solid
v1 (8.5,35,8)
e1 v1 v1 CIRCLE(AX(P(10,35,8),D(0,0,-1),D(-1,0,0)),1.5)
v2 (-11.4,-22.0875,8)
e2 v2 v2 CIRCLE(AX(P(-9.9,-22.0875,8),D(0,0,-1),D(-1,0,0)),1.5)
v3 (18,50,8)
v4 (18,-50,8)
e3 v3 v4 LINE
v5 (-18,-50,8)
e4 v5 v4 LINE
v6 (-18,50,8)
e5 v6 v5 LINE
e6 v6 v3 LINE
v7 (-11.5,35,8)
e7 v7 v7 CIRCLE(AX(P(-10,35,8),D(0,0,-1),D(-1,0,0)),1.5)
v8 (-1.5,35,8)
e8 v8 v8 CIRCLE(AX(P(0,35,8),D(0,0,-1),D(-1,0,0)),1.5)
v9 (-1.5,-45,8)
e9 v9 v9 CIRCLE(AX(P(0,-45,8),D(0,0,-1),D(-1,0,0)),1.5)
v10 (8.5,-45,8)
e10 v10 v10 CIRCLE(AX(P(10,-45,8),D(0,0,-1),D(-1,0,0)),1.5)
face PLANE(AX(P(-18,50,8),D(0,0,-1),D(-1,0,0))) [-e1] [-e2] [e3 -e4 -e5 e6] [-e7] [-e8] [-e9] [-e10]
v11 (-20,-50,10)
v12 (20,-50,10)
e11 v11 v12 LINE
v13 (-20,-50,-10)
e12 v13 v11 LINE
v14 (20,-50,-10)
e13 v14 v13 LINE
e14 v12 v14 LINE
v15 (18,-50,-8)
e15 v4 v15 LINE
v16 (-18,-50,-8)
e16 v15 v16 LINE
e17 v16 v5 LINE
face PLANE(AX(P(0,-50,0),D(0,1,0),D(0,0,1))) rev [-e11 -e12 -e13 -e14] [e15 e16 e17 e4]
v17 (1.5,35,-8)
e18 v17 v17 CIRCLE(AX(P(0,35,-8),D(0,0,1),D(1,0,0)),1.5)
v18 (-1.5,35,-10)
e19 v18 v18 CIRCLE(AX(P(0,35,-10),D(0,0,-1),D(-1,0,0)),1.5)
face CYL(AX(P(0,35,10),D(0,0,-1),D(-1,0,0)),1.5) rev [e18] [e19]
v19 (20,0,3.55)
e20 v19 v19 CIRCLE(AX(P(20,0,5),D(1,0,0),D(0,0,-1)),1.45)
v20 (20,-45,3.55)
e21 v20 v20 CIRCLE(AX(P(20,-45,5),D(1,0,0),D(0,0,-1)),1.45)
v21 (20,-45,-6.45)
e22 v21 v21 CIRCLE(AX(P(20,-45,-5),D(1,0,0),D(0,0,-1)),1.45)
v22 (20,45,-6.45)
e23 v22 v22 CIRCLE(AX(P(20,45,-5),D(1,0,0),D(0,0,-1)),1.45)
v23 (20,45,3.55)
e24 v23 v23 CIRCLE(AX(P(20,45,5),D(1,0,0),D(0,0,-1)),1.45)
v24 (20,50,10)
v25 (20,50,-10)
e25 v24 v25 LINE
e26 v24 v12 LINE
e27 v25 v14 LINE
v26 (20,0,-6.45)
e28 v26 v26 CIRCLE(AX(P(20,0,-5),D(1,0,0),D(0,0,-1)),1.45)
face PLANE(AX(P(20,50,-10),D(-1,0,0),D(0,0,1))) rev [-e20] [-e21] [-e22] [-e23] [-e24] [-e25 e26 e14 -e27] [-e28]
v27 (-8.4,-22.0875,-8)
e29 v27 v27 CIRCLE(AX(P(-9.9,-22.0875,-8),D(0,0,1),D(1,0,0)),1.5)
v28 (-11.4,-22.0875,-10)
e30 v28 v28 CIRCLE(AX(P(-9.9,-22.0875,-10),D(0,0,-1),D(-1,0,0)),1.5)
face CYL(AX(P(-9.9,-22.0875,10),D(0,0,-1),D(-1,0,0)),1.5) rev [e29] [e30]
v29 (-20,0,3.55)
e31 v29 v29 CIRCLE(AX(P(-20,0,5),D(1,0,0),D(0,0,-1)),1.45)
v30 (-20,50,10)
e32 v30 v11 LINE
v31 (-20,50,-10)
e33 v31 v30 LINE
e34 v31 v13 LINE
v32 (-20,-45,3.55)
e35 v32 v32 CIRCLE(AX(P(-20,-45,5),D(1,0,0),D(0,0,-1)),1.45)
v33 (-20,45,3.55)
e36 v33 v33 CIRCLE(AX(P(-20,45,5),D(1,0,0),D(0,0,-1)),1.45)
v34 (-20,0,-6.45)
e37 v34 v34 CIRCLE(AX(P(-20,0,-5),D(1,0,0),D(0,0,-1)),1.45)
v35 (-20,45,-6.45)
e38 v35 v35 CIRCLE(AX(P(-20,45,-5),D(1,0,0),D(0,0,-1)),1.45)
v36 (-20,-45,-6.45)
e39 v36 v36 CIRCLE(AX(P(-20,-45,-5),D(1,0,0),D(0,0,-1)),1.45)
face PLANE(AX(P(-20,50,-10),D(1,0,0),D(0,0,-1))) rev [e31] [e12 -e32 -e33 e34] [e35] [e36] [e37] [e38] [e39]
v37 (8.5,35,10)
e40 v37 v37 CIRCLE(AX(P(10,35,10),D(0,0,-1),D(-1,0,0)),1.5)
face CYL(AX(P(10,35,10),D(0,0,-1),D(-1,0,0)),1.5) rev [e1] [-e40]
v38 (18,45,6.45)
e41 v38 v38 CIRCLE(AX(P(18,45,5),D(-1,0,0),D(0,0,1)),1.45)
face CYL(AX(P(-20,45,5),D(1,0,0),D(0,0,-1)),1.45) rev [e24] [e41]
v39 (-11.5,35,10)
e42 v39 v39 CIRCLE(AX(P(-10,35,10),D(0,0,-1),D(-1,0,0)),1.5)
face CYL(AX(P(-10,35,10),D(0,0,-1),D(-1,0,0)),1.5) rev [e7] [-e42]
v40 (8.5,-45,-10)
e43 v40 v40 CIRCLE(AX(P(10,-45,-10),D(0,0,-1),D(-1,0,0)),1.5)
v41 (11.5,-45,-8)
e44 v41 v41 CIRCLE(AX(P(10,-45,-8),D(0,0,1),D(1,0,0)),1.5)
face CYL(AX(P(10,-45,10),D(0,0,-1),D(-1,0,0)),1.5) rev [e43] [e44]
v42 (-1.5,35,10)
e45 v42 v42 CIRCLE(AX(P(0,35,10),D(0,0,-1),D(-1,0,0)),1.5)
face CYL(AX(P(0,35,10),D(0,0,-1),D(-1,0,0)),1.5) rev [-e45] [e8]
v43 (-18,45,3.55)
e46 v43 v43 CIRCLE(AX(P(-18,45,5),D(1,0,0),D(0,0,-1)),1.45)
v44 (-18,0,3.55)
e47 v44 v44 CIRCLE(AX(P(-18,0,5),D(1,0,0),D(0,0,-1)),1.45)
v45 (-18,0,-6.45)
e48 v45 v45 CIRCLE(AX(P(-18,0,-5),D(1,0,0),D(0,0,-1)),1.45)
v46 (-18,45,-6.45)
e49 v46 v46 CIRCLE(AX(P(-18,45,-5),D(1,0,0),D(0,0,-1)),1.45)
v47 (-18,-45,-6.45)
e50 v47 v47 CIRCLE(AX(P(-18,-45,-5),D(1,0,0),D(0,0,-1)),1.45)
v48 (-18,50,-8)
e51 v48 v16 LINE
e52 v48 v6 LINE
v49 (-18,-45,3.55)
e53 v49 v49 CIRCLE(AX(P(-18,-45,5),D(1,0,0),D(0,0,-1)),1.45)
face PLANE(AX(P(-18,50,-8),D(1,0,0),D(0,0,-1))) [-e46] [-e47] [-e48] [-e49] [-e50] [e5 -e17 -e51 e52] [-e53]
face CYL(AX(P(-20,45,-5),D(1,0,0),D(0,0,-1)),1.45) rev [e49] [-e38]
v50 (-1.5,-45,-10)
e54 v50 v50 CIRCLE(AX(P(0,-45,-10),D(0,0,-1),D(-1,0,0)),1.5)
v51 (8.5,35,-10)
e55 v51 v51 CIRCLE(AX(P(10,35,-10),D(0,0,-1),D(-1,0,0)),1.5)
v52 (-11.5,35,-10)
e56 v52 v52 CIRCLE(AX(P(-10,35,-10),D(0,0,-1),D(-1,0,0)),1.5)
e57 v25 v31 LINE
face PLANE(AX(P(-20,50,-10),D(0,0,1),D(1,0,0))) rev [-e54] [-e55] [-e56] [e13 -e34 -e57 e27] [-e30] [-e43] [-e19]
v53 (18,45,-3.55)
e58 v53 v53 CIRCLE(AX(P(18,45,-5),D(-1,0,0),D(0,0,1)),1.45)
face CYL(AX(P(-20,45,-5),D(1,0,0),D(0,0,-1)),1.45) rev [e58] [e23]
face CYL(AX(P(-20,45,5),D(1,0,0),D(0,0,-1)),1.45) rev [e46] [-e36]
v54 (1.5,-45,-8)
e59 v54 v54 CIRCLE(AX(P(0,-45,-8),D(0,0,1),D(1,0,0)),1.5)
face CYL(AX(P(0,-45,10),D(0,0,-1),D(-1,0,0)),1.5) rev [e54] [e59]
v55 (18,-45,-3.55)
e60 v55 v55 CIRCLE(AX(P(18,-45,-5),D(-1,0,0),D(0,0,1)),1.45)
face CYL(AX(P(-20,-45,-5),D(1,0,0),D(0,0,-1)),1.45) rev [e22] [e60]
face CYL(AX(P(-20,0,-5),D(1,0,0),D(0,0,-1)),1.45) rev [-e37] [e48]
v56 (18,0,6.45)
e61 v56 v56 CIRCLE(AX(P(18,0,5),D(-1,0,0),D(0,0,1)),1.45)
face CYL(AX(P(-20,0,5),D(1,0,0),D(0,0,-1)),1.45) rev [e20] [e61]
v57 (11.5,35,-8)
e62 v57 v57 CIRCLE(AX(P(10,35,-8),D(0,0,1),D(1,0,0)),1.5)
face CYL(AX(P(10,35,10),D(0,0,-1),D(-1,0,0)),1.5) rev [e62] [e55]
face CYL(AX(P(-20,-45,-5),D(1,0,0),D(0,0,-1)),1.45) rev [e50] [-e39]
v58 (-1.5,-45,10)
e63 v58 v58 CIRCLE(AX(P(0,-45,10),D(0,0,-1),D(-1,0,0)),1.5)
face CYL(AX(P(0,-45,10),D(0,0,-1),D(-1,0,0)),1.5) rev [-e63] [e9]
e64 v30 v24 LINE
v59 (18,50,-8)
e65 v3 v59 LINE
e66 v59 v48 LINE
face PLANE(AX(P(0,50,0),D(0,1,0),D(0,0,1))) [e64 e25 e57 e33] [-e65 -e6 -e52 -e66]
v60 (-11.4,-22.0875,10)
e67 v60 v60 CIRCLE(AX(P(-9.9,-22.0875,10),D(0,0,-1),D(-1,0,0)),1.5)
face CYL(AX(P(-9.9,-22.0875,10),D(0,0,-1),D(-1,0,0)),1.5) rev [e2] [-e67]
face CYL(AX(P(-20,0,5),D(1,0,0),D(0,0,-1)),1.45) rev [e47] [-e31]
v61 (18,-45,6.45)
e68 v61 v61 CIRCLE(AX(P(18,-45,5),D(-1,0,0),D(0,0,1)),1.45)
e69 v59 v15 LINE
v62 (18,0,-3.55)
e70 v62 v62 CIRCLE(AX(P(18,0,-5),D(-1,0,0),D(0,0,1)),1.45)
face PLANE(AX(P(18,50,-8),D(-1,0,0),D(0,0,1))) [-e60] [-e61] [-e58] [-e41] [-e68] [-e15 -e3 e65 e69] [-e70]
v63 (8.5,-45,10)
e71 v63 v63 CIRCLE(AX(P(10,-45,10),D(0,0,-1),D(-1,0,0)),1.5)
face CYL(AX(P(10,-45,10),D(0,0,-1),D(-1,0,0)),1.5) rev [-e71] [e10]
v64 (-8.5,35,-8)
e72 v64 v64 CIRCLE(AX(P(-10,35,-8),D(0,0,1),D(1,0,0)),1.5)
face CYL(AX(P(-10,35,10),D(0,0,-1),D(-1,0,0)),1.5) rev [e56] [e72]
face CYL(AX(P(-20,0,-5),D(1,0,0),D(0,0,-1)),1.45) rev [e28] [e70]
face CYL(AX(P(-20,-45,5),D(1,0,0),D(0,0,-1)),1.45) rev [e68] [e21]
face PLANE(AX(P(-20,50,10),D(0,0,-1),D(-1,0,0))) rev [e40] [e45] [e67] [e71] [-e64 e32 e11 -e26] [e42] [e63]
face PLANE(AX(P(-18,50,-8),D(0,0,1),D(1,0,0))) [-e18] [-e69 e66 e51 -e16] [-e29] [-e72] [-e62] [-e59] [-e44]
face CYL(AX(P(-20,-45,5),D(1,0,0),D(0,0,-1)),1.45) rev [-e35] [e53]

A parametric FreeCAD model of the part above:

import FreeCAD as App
import Part
import Sketcher
Q = App.Units.Quantity


def add_polygon(sketch, points):
    """Adds a closed chain of lines whose ends are joined by coincident constraints."""
    first, n = sketch.GeometryCount, len(points)
    for a, b in zip(points, points[1:] + points[:1]):
        sketch.addGeometry(Part.LineSegment(App.Vector(*a, 0), App.Vector(*b, 0)), False)
    for i in range(n):
        sketch.addConstraint(Sketcher.Constraint("Coincident", first + i, 2, first + (i + 1) % n, 1))

doc = App.newDocument("Part")
params = doc.addObject("Spreadsheet::Sheet", "Params")
for row, (alias, value) in enumerate([
    ("sketch1_width", "40 mm"),
    ("sketch1_width2", "36 mm"),
    ("sketch1_height", "20 mm"),
    ("sketch1_height2", "16 mm"),
    ("pad1_length", "100 mm"),
    ("sketch2_diameter", "2.9 mm"),
    ("sketch3_diameter", "3 mm"),
    ("sketch4_diameter", "3 mm"),
], start=1):
    params.set(f"A{row}", alias)
    params.set(f"B{row}", "=" + value)
    params.setAlias(f"B{row}", alias)

body = doc.addObject("PartDesign::Body", "Body")

# Sketch on XZ plane
sketch1 = body.newObject("Sketcher::SketchObject", "Sketch")
sketch1.AttachmentSupport = (doc.getObject("XZ_Plane"), [""])
sketch1.MapMode = "FlatFace"
add_polygon(sketch1, [(-20, -10), (-20, 10), (20, 10), (20, -10)])  # lines 0-3
add_polygon(sketch1, [(18, 8), (-18, 8), (-18, -8), (18, -8)])  # lines 4-7
sketch1.addConstraint(Sketcher.Constraint("Vertical", 0))
sketch1.addConstraint(Sketcher.Constraint("Horizontal", 1))
sketch1.addConstraint(Sketcher.Constraint("Vertical", 2))
sketch1.addConstraint(Sketcher.Constraint("Horizontal", 3))
sketch1.addConstraint(Sketcher.Constraint("Horizontal", 4))
sketch1.addConstraint(Sketcher.Constraint("Vertical", 5))
sketch1.addConstraint(Sketcher.Constraint("Horizontal", 6))
sketch1.addConstraint(Sketcher.Constraint("Vertical", 7))
sketch1.addConstraint(Sketcher.Constraint("Symmetric", 0, 2, 2, 2, -1, 1))
sketch1.addConstraint(Sketcher.Constraint("Symmetric", 4, 2, 6, 2, -1, 1))
sketch1.addConstraint(Sketcher.Constraint("DistanceX", 1, 1, 1, 2, Q("40 mm")))
sketch1.addConstraint(Sketcher.Constraint("DistanceX", 4, 2, 4, 1, Q("36 mm")))
sketch1.addConstraint(Sketcher.Constraint("DistanceY", 0, 1, 0, 2, Q("20 mm")))
sketch1.addConstraint(Sketcher.Constraint("DistanceY", 5, 2, 5, 1, Q("16 mm")))
sketch1.setExpression("Constraints[18]", "Params.sketch1_width")
sketch1.setExpression("Constraints[19]", "Params.sketch1_width2")
sketch1.setExpression("Constraints[20]", "Params.sketch1_height")
sketch1.setExpression("Constraints[21]", "Params.sketch1_height2")
pad1 = body.newObject("PartDesign::Pad", "Pad")
pad1.Profile = sketch1
pad1.setExpression("Length", "Params.pad1_length")
pad1.Midplane = True

# Sketch on YZ plane
sketch2 = body.newObject("Sketcher::SketchObject", "Sketch001")
sketch2.AttachmentSupport = (doc.getObject("YZ_Plane"), [""])
sketch2.MapMode = "FlatFace"
sketch2.AttachmentOffset = App.Placement(App.Vector(0, 0, 20), App.Rotation())
sketch2.addGeometry(Part.Circle(App.Vector(45, -5, 0), App.Vector(0, 0, 1), 1.45), False)
sketch2.addGeometry(Part.Circle(App.Vector(45, 5, 0), App.Vector(0, 0, 1), 1.45), False)
sketch2.addGeometry(Part.Circle(App.Vector(0, -5, 0), App.Vector(0, 0, 1), 1.45), False)
sketch2.addGeometry(Part.Circle(App.Vector(0, 5, 0), App.Vector(0, 0, 1), 1.45), False)
sketch2.addGeometry(Part.Circle(App.Vector(-45, -5, 0), App.Vector(0, 0, 1), 1.45), False)
sketch2.addGeometry(Part.Circle(App.Vector(-45, 5, 0), App.Vector(0, 0, 1), 1.45), False)
sketch2.addConstraint(Sketcher.Constraint("Equal", 0, 1))
sketch2.addConstraint(Sketcher.Constraint("Equal", 1, 2))
sketch2.addConstraint(Sketcher.Constraint("Equal", 2, 3))
sketch2.addConstraint(Sketcher.Constraint("Equal", 3, 4))
sketch2.addConstraint(Sketcher.Constraint("Equal", 4, 5))
sketch2.addConstraint(Sketcher.Constraint("Symmetric", 2, 3, 3, 3, -1, 1))
sketch2.addConstraint(Sketcher.Constraint("Symmetric", 1, 3, 4, 3, -1, 1))
sketch2.addConstraint(Sketcher.Constraint("Symmetric", 0, 3, 5, 3, -1, 1))
sketch2.addConstraint(Sketcher.Constraint("Symmetric", 0, 3, 4, 3, -2))
sketch2.addConstraint(Sketcher.Constraint("PointOnObject", 2, 3, -2))
sketch2.addConstraint(Sketcher.Constraint("Horizontal", 0, 3, 2, 3))
sketch2.addConstraint(Sketcher.Constraint("Diameter", 0, Q("2.9 mm")))
sketch2.addConstraint(Sketcher.Constraint("DistanceX", -1, 1, 0, 3, Q("45 mm")))
sketch2.addConstraint(Sketcher.Constraint("DistanceY", 0, 3, -1, 1, Q("5 mm")))
sketch2.setExpression("Constraints[11]", "Params.sketch2_diameter")
pocket1 = body.newObject("PartDesign::Pocket", "Pocket")
pocket1.Profile = sketch2
pocket1.Type = "ThroughAll"

# Sketch on XY plane
sketch3 = body.newObject("Sketcher::SketchObject", "Sketch002")
sketch3.AttachmentSupport = (doc.getObject("XY_Plane"), [""])
sketch3.MapMode = "FlatFace"
sketch3.AttachmentOffset = App.Placement(App.Vector(0, 0, -10), App.Rotation())
sketch3.addGeometry(Part.Circle(App.Vector(-10, 35, 0), App.Vector(0, 0, 1), 1.5), False)
sketch3.addGeometry(Part.Circle(App.Vector(0, 35, 0), App.Vector(0, 0, 1), 1.5), False)
sketch3.addGeometry(Part.Circle(App.Vector(10, 35, 0), App.Vector(0, 0, 1), 1.5), False)
sketch3.addConstraint(Sketcher.Constraint("Equal", 0, 1))
sketch3.addConstraint(Sketcher.Constraint("Equal", 1, 2))
sketch3.addConstraint(Sketcher.Constraint("Symmetric", 0, 3, 2, 3, -2))
sketch3.addConstraint(Sketcher.Constraint("PointOnObject", 1, 3, -2))
sketch3.addConstraint(Sketcher.Constraint("Horizontal", 0, 3, 1, 3))
sketch3.addConstraint(Sketcher.Constraint("Diameter", 0, Q("3 mm")))
sketch3.addConstraint(Sketcher.Constraint("DistanceX", 0, 3, -1, 1, Q("10 mm")))
sketch3.addConstraint(Sketcher.Constraint("DistanceY", -1, 1, 0, 3, Q("35 mm")))
sketch3.setExpression("Constraints[5]", "Params.sketch3_diameter")
pocket2 = body.newObject("PartDesign::Pocket", "Pocket001")
pocket2.Profile = sketch3
pocket2.Type = "ThroughAll"
pocket2.Reversed = True

# Sketch on XY plane
sketch4 = body.newObject("Sketcher::SketchObject", "Sketch003")
sketch4.AttachmentSupport = (doc.getObject("XY_Plane"), [""])
sketch4.MapMode = "FlatFace"
sketch4.AttachmentOffset = App.Placement(App.Vector(0, 0, -10), App.Rotation())
sketch4.addGeometry(Part.Circle(App.Vector(0, -45, 0), App.Vector(0, 0, 1), 1.5), False)
sketch4.addGeometry(Part.Circle(App.Vector(10, -45, 0), App.Vector(0, 0, 1), 1.5), False)
sketch4.addGeometry(Part.Circle(App.Vector(-9.9, -22.0875, 0), App.Vector(0, 0, 1), 1.5), False)
sketch4.addConstraint(Sketcher.Constraint("Equal", 0, 1))
sketch4.addConstraint(Sketcher.Constraint("Equal", 1, 2))
sketch4.addConstraint(Sketcher.Constraint("PointOnObject", 0, 3, -2))
sketch4.addConstraint(Sketcher.Constraint("Horizontal", 0, 3, 1, 3))
sketch4.addConstraint(Sketcher.Constraint("Diameter", 0, Q("3 mm")))
sketch4.addConstraint(Sketcher.Constraint("DistanceY", 0, 3, -1, 1, Q("45 mm")))
sketch4.addConstraint(Sketcher.Constraint("DistanceX", -1, 1, 1, 3, Q("10 mm")))
sketch4.addConstraint(Sketcher.Constraint("DistanceX", 2, 3, -1, 1, Q("9.9 mm")))
sketch4.addConstraint(Sketcher.Constraint("DistanceY", 2, 3, -1, 1, Q("22.0875 mm")))
sketch4.setExpression("Constraints[4]", "Params.sketch4_diameter")
pocket3 = body.newObject("PartDesign::Pocket", "Pocket002")
pocket3.Profile = sketch4
pocket3.Type = "ThroughAll"
pocket3.Reversed = True

doc.recompute()
